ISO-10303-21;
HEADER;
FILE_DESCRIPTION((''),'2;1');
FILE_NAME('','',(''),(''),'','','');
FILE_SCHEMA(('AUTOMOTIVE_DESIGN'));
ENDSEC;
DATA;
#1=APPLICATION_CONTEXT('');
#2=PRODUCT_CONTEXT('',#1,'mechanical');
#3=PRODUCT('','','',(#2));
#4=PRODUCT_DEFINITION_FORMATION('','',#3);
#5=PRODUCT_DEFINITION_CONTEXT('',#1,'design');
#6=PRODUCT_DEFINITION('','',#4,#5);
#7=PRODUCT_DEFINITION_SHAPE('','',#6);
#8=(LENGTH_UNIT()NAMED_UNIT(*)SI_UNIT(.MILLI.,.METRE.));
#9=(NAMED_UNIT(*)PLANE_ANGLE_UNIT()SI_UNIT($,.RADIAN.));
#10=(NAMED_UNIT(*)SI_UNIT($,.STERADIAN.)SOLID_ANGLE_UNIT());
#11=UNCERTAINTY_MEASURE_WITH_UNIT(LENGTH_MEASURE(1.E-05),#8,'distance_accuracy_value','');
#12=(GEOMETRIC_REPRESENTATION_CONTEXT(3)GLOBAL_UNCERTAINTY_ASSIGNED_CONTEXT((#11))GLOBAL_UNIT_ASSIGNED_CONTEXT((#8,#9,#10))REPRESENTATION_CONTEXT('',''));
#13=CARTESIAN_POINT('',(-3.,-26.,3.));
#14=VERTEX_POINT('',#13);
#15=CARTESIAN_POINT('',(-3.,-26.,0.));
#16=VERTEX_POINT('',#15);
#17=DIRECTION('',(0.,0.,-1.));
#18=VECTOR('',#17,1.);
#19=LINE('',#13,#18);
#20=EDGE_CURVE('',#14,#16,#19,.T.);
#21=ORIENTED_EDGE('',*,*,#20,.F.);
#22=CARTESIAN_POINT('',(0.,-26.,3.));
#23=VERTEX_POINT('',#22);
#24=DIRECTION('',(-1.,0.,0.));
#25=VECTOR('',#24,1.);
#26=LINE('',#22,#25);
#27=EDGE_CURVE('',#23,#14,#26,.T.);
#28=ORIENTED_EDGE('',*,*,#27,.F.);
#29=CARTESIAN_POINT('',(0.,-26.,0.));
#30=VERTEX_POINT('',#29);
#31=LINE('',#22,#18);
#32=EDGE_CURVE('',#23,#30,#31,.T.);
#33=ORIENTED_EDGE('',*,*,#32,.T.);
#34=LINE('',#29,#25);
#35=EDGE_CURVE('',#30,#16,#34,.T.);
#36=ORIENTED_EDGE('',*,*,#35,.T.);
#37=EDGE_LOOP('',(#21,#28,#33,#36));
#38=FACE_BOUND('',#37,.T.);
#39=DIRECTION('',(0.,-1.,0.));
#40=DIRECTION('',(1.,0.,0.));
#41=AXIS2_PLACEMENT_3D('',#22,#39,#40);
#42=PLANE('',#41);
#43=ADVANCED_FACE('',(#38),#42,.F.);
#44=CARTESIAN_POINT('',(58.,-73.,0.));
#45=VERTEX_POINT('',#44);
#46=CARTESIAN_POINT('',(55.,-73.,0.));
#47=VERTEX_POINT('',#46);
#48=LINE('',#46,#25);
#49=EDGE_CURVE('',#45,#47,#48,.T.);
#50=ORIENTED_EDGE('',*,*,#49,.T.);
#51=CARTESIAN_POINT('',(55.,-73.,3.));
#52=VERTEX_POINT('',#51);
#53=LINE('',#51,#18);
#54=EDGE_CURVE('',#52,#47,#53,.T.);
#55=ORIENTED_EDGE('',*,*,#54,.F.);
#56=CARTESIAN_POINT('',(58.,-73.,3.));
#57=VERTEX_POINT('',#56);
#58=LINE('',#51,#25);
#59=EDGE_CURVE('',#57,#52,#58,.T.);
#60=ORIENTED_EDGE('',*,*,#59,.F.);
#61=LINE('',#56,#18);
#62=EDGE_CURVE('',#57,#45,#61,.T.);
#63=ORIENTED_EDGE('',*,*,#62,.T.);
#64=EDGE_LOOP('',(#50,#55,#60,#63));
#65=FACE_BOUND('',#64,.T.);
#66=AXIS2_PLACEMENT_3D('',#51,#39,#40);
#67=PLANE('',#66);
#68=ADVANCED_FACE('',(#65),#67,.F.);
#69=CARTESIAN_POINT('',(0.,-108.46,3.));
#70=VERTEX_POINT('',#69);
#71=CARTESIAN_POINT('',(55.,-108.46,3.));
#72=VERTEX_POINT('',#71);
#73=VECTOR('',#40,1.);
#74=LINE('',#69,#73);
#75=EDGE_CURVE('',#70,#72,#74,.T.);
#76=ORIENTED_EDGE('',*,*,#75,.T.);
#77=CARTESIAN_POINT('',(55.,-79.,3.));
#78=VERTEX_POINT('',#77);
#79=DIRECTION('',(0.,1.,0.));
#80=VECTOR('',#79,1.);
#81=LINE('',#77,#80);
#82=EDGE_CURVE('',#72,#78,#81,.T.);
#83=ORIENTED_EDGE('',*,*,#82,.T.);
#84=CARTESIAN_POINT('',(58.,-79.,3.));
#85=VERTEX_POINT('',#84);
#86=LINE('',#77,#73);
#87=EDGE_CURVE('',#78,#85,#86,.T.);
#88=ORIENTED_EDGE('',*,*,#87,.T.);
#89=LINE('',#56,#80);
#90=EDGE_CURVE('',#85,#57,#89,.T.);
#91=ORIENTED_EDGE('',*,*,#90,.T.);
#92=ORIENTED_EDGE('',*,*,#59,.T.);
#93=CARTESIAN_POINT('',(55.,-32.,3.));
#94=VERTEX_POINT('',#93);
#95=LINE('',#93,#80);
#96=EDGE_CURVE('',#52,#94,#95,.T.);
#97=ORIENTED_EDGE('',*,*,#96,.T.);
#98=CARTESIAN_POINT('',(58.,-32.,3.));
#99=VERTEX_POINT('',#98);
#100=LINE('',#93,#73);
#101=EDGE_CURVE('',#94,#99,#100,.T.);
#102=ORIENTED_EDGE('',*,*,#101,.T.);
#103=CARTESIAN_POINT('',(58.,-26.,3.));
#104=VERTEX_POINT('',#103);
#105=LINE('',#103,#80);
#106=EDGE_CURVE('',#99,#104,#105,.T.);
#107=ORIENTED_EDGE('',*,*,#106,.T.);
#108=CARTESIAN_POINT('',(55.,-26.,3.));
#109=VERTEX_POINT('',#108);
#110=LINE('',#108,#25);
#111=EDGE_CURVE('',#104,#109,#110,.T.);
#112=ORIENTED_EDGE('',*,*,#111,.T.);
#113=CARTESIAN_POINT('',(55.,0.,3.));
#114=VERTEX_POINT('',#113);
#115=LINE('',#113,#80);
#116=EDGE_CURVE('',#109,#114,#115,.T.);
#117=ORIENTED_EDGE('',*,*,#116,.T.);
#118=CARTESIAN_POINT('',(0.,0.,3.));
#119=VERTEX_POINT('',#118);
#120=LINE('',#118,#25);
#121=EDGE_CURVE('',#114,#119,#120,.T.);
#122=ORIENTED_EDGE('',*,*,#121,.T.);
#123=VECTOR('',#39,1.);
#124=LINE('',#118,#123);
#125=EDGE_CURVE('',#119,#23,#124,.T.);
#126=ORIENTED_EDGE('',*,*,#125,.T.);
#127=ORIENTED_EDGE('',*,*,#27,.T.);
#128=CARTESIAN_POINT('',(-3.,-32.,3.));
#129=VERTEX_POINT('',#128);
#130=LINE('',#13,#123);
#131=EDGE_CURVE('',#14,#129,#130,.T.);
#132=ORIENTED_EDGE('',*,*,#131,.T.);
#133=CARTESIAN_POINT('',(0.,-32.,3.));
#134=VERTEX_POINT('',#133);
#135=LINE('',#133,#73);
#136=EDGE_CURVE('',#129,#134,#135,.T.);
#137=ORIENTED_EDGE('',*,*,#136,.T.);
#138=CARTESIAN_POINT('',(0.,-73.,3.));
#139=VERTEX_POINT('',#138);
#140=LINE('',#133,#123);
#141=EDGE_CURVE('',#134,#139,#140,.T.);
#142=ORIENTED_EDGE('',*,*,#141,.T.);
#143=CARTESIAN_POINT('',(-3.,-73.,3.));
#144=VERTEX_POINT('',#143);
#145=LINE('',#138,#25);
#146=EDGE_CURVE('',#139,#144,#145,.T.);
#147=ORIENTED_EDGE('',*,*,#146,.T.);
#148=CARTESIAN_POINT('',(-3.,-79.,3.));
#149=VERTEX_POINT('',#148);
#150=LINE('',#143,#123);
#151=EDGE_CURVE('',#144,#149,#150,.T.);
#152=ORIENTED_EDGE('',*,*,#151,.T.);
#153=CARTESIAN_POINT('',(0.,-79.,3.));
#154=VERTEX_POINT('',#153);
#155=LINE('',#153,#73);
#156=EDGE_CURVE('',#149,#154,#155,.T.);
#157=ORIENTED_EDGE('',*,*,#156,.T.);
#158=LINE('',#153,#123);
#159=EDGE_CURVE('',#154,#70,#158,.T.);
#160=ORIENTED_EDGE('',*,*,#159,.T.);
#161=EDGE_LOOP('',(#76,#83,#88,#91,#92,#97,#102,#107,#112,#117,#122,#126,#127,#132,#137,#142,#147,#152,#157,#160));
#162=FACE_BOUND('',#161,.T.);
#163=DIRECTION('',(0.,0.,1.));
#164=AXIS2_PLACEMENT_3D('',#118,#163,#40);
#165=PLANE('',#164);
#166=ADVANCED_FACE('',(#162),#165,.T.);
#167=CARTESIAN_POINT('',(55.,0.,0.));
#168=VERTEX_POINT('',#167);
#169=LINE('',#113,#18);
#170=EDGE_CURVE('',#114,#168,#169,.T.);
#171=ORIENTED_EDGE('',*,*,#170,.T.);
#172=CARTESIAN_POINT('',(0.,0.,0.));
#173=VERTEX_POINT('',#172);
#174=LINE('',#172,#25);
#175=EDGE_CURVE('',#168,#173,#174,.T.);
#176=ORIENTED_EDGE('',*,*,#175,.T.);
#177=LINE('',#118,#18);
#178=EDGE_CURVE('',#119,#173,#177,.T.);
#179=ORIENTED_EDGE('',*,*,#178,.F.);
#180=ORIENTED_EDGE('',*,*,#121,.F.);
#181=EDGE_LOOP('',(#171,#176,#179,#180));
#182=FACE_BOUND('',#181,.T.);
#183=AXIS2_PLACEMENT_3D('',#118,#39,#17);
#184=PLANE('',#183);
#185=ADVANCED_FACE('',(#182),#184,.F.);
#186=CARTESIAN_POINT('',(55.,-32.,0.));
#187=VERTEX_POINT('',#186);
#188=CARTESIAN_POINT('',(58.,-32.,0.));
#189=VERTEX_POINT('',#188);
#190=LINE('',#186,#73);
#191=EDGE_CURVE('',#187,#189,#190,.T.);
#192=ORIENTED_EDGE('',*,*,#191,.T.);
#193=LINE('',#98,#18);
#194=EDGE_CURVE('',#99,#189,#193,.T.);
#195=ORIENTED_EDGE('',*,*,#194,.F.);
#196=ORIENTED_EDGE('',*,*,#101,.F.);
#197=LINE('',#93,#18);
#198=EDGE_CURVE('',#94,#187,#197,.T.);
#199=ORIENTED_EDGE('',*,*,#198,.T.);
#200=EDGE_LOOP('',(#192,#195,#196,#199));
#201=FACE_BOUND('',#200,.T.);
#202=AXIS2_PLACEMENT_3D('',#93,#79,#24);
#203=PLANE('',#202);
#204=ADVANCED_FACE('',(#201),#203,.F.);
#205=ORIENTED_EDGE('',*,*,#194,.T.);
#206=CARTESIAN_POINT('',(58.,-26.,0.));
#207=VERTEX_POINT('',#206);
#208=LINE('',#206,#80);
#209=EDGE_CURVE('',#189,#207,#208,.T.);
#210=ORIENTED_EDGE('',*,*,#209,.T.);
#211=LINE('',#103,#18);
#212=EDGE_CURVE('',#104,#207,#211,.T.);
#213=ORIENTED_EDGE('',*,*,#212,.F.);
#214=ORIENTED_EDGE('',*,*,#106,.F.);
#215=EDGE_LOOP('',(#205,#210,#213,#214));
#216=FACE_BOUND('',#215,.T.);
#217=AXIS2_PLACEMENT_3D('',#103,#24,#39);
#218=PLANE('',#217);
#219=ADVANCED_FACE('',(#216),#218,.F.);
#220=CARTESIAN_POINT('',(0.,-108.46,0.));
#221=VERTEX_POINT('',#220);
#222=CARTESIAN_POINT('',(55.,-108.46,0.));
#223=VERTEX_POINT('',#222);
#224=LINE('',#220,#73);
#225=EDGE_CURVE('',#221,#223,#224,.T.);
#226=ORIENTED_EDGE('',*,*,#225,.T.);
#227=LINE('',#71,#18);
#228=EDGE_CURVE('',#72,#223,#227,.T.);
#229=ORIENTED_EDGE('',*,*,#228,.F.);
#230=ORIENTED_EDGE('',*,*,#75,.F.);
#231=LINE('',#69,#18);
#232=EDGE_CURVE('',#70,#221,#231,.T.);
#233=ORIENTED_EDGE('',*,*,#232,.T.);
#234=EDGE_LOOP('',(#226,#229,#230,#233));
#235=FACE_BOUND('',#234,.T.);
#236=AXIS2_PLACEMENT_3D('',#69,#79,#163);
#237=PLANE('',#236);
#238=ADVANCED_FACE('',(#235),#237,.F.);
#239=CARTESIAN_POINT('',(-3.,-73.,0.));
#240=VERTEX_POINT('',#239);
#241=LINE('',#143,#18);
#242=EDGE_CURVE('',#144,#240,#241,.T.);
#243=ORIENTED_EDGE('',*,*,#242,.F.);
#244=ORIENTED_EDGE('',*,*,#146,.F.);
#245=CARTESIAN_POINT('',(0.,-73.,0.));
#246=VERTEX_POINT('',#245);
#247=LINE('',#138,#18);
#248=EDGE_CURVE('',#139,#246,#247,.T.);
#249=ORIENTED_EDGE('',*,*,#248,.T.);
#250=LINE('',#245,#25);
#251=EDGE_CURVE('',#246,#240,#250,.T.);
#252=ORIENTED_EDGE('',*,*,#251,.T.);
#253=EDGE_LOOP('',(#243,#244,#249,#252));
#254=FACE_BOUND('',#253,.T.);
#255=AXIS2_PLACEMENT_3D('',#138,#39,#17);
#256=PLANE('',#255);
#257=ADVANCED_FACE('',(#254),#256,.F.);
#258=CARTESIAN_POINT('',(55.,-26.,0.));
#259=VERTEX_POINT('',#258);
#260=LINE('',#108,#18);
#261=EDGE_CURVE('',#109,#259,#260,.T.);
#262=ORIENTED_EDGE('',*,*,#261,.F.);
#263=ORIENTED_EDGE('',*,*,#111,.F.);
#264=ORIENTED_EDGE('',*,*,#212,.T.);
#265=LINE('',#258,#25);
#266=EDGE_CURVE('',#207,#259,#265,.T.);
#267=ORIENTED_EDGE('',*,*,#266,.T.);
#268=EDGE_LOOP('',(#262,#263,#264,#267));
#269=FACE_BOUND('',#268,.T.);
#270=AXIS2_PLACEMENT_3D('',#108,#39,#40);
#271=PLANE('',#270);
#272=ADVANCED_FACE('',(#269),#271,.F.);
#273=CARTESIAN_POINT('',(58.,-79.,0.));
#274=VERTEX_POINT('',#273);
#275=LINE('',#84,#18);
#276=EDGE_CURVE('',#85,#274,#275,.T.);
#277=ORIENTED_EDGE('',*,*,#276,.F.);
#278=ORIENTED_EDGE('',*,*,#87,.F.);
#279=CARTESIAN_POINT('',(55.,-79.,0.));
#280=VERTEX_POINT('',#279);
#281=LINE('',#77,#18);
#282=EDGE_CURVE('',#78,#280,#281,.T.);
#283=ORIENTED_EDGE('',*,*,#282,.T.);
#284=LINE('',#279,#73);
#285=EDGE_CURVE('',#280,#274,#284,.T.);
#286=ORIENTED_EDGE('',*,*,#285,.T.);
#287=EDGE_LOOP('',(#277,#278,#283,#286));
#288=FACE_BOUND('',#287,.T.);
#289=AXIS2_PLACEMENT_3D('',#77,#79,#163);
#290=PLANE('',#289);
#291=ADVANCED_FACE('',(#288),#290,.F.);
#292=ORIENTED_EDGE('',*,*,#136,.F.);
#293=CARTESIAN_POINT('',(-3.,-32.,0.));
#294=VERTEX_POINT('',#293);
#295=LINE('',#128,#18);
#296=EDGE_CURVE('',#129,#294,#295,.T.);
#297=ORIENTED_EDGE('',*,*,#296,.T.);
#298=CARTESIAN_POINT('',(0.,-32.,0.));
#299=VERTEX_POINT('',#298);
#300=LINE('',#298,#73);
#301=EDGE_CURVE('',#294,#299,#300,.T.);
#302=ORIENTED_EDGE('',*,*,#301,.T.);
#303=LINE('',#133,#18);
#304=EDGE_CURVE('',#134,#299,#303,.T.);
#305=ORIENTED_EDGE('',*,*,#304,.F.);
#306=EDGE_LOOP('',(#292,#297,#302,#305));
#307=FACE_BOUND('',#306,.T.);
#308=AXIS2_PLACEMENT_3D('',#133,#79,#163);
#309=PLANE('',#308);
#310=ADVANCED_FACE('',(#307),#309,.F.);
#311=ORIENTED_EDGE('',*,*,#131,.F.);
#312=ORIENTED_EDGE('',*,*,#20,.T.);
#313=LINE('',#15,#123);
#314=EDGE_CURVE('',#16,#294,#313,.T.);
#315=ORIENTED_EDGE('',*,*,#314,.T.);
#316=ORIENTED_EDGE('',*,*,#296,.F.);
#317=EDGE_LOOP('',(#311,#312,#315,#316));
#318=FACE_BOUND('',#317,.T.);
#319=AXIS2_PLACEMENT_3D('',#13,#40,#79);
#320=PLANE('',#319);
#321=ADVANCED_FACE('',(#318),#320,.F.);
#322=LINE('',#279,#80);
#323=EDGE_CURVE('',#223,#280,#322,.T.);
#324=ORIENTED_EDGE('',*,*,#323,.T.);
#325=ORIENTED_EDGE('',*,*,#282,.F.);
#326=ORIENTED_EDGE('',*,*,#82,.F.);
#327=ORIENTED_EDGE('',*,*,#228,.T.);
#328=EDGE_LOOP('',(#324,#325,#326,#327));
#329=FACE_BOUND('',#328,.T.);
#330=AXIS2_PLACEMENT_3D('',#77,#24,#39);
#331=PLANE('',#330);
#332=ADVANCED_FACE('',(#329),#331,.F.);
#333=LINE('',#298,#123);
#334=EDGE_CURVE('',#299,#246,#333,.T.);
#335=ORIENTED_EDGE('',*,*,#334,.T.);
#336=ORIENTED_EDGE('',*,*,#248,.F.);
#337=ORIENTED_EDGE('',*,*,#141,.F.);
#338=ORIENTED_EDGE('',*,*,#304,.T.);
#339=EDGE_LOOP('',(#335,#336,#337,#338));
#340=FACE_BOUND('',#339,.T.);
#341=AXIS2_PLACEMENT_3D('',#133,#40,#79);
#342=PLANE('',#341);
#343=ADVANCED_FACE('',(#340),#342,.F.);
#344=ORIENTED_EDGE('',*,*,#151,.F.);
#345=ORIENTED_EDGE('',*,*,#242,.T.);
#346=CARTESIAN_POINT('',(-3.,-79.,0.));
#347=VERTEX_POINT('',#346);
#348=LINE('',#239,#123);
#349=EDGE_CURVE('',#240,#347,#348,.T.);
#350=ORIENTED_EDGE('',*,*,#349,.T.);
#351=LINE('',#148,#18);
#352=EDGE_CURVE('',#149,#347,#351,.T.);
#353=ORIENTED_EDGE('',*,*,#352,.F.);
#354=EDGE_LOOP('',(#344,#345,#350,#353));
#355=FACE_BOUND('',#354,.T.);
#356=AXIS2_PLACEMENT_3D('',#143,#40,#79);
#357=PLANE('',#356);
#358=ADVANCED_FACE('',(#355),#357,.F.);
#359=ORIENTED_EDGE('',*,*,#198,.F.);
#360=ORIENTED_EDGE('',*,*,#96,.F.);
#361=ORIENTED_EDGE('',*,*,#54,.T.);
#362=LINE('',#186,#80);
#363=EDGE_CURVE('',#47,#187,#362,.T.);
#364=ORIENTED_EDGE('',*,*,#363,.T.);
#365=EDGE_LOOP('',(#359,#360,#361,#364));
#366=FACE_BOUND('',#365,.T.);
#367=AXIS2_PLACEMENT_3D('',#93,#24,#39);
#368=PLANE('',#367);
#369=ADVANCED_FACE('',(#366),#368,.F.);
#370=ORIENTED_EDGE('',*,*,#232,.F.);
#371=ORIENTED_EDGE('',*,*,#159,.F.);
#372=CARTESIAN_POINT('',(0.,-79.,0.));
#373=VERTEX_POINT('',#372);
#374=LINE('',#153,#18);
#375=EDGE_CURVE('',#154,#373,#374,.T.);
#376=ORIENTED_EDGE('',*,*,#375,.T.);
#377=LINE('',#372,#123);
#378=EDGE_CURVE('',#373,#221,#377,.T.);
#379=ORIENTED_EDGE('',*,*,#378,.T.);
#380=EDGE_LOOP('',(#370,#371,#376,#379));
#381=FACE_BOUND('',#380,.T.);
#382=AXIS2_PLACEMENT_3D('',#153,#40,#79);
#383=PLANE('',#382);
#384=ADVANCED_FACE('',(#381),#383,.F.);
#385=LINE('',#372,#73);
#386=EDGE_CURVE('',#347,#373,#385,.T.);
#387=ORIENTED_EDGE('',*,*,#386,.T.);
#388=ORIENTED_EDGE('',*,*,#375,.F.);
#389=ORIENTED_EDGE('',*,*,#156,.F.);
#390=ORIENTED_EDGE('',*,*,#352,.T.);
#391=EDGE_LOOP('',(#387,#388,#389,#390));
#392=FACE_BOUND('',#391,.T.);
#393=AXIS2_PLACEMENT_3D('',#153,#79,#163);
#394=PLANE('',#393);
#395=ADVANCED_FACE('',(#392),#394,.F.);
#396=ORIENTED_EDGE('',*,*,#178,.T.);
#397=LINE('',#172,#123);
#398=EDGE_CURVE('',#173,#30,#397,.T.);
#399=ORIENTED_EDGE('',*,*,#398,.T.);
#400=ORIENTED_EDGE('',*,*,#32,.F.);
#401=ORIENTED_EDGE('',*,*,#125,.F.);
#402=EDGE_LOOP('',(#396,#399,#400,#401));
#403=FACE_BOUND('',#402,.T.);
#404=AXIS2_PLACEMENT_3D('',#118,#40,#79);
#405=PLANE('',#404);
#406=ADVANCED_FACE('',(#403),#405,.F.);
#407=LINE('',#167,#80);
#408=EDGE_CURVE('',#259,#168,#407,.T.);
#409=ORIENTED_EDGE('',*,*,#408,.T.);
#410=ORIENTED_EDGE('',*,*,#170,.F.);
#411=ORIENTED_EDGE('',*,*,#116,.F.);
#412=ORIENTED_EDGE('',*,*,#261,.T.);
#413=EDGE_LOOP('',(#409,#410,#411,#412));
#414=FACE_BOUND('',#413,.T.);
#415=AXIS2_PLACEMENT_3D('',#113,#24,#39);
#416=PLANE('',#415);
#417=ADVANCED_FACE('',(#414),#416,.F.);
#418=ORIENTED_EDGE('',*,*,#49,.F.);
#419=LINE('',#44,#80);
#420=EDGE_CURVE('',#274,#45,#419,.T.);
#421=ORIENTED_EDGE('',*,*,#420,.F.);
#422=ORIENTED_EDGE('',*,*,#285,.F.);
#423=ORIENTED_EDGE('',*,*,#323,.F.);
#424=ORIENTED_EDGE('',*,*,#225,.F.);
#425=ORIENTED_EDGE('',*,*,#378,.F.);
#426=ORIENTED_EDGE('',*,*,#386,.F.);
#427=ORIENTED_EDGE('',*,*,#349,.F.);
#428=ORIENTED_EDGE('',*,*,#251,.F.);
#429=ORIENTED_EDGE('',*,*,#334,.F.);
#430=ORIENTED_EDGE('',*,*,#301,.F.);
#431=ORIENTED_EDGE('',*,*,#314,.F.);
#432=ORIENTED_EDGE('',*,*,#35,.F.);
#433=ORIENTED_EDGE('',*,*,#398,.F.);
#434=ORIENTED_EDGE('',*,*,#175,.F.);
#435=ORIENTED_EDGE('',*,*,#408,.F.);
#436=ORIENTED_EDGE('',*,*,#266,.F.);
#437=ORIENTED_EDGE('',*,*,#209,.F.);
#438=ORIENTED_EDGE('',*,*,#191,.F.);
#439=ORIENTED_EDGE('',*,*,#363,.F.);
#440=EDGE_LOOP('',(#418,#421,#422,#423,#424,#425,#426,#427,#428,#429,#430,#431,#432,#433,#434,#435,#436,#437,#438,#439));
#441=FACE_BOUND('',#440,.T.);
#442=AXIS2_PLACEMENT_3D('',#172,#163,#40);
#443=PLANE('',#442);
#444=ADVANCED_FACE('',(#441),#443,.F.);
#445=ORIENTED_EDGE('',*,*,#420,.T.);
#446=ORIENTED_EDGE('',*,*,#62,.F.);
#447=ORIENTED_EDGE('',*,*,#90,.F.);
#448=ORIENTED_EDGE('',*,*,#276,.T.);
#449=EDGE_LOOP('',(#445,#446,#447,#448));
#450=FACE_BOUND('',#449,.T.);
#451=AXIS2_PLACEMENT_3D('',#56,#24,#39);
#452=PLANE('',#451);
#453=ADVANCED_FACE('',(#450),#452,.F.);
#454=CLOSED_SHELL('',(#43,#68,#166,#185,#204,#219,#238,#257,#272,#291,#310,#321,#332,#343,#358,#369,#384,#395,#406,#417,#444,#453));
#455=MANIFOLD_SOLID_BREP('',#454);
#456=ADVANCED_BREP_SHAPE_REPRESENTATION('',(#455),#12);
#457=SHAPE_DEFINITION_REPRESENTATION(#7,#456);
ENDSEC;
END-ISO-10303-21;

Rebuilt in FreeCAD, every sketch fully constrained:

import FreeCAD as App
import Part
import Sketcher
Q = App.Units.Quantity


def add_polygon(sketch, points):
    """Adds a closed chain of lines whose ends are joined by coincident constraints."""
    first, n = sketch.GeometryCount, len(points)
    for a, b in zip(points, points[1:] + points[:1]):
        sketch.addGeometry(Part.LineSegment(App.Vector(*a, 0), App.Vector(*b, 0)), False)
    for i in range(n):
        sketch.addConstraint(Sketcher.Constraint("Coincident", first + i, 2, first + (i + 1) % n, 1))

doc = App.newDocument("Part")
body = doc.addObject("PartDesign::Body", "Body")

sketch1 = doc.addObject("Sketcher::SketchObject", "Sketch")
body.addObject(sketch1)
sketch1.AttachmentSupport = (doc.XY_Plane, [""])
sketch1.MapMode = "FlatFace"
add_polygon(sketch1, [(55, 0), (0, 0), (0, -26), (-3, -26), (-3, -32), (0, -32), (0, -73), (-3, -73), (-3, -79), (0, -79), (0, -108.5), (55, -108.5), (55, -79), (58, -79), (58, -73), (55, -73), (55, -32), (58, -32), (58, -26), (55, -26)])
sketch1.addConstraint(Sketcher.Constraint("Horizontal", 0))
sketch1.addConstraint(Sketcher.Constraint("Vertical", 1))
sketch1.addConstraint(Sketcher.Constraint("Horizontal", 2))
sketch1.addConstraint(Sketcher.Constraint("Vertical", 3))
sketch1.addConstraint(Sketcher.Constraint("Horizontal", 4))
sketch1.addConstraint(Sketcher.Constraint("Vertical", 5))
sketch1.addConstraint(Sketcher.Constraint("Horizontal", 6))
sketch1.addConstraint(Sketcher.Constraint("Vertical", 7))
sketch1.addConstraint(Sketcher.Constraint("Horizontal", 8))
sketch1.addConstraint(Sketcher.Constraint("Vertical", 9))
sketch1.addConstraint(Sketcher.Constraint("Horizontal", 10))
sketch1.addConstraint(Sketcher.Constraint("Vertical", 11))
sketch1.addConstraint(Sketcher.Constraint("Horizontal", 12))
sketch1.addConstraint(Sketcher.Constraint("Vertical", 13))
sketch1.addConstraint(Sketcher.Constraint("Horizontal", 14))
sketch1.addConstraint(Sketcher.Constraint("Vertical", 15))
sketch1.addConstraint(Sketcher.Constraint("Horizontal", 16))
sketch1.addConstraint(Sketcher.Constraint("Vertical", 17))
sketch1.addConstraint(Sketcher.Constraint("Horizontal", 18))
sketch1.addConstraint(Sketcher.Constraint("Vertical", 19))
sketch1.addConstraint(Sketcher.Constraint("Coincident", 0, 2, -1, 1))
sketch1.addConstraint(Sketcher.Constraint("PointOnObject", 4, 2, -2))
sketch1.addConstraint(Sketcher.Constraint("PointOnObject", 8, 2, -2))
sketch1.addConstraint(Sketcher.Constraint("Horizontal", 8, 2, 11, 2))
sketch1.addConstraint(Sketcher.Constraint("Horizontal", 6, 2, 13, 2))
sketch1.addConstraint(Sketcher.Constraint("Horizontal", 4, 2, 15, 2))
sketch1.addConstraint(Sketcher.Constraint("Horizontal", 2, 2, 17, 2))
sketch1.addConstraint(Sketcher.Constraint("Vertical", 3, 2, 6, 2))
sketch1.addConstraint(Sketcher.Constraint("Vertical", 11, 2, 14, 2))
sketch1.addConstraint(Sketcher.Constraint("Vertical", 13, 2, 16, 2))
sketch1.addConstraint(Sketcher.Constraint("Vertical", 15, 2, 18, 2))
sketch1.addConstraint(Sketcher.Constraint("Equal", 8, 12))
sketch1.addConstraint(Sketcher.Constraint("Equal", 3, 7))
sketch1.addConstraint(Sketcher.Constraint("DistanceX", 0, 2, 0, 1, Q("55 mm")))
sketch1.addConstraint(Sketcher.Constraint("DistanceX", 2, 2, 2, 1, Q("3 mm")))
sketch1.addConstraint(Sketcher.Constraint("DistanceY", 1, 2, 1, 1, Q("26 mm")))
sketch1.addConstraint(Sketcher.Constraint("DistanceY", 3, 2, 3, 1, Q("6 mm")))
sketch1.addConstraint(Sketcher.Constraint("DistanceY", 5, 2, 5, 1, Q("41 mm")))
sketch1.addConstraint(Sketcher.Constraint("DistanceY", 9, 2, 9, 1, Q("29.46 mm")))
pad1 = doc.addObject("PartDesign::Pad", "Pad")
body.addObject(pad1)
pad1.Profile = sketch1
pad1.Length = 3

doc.recompute()
